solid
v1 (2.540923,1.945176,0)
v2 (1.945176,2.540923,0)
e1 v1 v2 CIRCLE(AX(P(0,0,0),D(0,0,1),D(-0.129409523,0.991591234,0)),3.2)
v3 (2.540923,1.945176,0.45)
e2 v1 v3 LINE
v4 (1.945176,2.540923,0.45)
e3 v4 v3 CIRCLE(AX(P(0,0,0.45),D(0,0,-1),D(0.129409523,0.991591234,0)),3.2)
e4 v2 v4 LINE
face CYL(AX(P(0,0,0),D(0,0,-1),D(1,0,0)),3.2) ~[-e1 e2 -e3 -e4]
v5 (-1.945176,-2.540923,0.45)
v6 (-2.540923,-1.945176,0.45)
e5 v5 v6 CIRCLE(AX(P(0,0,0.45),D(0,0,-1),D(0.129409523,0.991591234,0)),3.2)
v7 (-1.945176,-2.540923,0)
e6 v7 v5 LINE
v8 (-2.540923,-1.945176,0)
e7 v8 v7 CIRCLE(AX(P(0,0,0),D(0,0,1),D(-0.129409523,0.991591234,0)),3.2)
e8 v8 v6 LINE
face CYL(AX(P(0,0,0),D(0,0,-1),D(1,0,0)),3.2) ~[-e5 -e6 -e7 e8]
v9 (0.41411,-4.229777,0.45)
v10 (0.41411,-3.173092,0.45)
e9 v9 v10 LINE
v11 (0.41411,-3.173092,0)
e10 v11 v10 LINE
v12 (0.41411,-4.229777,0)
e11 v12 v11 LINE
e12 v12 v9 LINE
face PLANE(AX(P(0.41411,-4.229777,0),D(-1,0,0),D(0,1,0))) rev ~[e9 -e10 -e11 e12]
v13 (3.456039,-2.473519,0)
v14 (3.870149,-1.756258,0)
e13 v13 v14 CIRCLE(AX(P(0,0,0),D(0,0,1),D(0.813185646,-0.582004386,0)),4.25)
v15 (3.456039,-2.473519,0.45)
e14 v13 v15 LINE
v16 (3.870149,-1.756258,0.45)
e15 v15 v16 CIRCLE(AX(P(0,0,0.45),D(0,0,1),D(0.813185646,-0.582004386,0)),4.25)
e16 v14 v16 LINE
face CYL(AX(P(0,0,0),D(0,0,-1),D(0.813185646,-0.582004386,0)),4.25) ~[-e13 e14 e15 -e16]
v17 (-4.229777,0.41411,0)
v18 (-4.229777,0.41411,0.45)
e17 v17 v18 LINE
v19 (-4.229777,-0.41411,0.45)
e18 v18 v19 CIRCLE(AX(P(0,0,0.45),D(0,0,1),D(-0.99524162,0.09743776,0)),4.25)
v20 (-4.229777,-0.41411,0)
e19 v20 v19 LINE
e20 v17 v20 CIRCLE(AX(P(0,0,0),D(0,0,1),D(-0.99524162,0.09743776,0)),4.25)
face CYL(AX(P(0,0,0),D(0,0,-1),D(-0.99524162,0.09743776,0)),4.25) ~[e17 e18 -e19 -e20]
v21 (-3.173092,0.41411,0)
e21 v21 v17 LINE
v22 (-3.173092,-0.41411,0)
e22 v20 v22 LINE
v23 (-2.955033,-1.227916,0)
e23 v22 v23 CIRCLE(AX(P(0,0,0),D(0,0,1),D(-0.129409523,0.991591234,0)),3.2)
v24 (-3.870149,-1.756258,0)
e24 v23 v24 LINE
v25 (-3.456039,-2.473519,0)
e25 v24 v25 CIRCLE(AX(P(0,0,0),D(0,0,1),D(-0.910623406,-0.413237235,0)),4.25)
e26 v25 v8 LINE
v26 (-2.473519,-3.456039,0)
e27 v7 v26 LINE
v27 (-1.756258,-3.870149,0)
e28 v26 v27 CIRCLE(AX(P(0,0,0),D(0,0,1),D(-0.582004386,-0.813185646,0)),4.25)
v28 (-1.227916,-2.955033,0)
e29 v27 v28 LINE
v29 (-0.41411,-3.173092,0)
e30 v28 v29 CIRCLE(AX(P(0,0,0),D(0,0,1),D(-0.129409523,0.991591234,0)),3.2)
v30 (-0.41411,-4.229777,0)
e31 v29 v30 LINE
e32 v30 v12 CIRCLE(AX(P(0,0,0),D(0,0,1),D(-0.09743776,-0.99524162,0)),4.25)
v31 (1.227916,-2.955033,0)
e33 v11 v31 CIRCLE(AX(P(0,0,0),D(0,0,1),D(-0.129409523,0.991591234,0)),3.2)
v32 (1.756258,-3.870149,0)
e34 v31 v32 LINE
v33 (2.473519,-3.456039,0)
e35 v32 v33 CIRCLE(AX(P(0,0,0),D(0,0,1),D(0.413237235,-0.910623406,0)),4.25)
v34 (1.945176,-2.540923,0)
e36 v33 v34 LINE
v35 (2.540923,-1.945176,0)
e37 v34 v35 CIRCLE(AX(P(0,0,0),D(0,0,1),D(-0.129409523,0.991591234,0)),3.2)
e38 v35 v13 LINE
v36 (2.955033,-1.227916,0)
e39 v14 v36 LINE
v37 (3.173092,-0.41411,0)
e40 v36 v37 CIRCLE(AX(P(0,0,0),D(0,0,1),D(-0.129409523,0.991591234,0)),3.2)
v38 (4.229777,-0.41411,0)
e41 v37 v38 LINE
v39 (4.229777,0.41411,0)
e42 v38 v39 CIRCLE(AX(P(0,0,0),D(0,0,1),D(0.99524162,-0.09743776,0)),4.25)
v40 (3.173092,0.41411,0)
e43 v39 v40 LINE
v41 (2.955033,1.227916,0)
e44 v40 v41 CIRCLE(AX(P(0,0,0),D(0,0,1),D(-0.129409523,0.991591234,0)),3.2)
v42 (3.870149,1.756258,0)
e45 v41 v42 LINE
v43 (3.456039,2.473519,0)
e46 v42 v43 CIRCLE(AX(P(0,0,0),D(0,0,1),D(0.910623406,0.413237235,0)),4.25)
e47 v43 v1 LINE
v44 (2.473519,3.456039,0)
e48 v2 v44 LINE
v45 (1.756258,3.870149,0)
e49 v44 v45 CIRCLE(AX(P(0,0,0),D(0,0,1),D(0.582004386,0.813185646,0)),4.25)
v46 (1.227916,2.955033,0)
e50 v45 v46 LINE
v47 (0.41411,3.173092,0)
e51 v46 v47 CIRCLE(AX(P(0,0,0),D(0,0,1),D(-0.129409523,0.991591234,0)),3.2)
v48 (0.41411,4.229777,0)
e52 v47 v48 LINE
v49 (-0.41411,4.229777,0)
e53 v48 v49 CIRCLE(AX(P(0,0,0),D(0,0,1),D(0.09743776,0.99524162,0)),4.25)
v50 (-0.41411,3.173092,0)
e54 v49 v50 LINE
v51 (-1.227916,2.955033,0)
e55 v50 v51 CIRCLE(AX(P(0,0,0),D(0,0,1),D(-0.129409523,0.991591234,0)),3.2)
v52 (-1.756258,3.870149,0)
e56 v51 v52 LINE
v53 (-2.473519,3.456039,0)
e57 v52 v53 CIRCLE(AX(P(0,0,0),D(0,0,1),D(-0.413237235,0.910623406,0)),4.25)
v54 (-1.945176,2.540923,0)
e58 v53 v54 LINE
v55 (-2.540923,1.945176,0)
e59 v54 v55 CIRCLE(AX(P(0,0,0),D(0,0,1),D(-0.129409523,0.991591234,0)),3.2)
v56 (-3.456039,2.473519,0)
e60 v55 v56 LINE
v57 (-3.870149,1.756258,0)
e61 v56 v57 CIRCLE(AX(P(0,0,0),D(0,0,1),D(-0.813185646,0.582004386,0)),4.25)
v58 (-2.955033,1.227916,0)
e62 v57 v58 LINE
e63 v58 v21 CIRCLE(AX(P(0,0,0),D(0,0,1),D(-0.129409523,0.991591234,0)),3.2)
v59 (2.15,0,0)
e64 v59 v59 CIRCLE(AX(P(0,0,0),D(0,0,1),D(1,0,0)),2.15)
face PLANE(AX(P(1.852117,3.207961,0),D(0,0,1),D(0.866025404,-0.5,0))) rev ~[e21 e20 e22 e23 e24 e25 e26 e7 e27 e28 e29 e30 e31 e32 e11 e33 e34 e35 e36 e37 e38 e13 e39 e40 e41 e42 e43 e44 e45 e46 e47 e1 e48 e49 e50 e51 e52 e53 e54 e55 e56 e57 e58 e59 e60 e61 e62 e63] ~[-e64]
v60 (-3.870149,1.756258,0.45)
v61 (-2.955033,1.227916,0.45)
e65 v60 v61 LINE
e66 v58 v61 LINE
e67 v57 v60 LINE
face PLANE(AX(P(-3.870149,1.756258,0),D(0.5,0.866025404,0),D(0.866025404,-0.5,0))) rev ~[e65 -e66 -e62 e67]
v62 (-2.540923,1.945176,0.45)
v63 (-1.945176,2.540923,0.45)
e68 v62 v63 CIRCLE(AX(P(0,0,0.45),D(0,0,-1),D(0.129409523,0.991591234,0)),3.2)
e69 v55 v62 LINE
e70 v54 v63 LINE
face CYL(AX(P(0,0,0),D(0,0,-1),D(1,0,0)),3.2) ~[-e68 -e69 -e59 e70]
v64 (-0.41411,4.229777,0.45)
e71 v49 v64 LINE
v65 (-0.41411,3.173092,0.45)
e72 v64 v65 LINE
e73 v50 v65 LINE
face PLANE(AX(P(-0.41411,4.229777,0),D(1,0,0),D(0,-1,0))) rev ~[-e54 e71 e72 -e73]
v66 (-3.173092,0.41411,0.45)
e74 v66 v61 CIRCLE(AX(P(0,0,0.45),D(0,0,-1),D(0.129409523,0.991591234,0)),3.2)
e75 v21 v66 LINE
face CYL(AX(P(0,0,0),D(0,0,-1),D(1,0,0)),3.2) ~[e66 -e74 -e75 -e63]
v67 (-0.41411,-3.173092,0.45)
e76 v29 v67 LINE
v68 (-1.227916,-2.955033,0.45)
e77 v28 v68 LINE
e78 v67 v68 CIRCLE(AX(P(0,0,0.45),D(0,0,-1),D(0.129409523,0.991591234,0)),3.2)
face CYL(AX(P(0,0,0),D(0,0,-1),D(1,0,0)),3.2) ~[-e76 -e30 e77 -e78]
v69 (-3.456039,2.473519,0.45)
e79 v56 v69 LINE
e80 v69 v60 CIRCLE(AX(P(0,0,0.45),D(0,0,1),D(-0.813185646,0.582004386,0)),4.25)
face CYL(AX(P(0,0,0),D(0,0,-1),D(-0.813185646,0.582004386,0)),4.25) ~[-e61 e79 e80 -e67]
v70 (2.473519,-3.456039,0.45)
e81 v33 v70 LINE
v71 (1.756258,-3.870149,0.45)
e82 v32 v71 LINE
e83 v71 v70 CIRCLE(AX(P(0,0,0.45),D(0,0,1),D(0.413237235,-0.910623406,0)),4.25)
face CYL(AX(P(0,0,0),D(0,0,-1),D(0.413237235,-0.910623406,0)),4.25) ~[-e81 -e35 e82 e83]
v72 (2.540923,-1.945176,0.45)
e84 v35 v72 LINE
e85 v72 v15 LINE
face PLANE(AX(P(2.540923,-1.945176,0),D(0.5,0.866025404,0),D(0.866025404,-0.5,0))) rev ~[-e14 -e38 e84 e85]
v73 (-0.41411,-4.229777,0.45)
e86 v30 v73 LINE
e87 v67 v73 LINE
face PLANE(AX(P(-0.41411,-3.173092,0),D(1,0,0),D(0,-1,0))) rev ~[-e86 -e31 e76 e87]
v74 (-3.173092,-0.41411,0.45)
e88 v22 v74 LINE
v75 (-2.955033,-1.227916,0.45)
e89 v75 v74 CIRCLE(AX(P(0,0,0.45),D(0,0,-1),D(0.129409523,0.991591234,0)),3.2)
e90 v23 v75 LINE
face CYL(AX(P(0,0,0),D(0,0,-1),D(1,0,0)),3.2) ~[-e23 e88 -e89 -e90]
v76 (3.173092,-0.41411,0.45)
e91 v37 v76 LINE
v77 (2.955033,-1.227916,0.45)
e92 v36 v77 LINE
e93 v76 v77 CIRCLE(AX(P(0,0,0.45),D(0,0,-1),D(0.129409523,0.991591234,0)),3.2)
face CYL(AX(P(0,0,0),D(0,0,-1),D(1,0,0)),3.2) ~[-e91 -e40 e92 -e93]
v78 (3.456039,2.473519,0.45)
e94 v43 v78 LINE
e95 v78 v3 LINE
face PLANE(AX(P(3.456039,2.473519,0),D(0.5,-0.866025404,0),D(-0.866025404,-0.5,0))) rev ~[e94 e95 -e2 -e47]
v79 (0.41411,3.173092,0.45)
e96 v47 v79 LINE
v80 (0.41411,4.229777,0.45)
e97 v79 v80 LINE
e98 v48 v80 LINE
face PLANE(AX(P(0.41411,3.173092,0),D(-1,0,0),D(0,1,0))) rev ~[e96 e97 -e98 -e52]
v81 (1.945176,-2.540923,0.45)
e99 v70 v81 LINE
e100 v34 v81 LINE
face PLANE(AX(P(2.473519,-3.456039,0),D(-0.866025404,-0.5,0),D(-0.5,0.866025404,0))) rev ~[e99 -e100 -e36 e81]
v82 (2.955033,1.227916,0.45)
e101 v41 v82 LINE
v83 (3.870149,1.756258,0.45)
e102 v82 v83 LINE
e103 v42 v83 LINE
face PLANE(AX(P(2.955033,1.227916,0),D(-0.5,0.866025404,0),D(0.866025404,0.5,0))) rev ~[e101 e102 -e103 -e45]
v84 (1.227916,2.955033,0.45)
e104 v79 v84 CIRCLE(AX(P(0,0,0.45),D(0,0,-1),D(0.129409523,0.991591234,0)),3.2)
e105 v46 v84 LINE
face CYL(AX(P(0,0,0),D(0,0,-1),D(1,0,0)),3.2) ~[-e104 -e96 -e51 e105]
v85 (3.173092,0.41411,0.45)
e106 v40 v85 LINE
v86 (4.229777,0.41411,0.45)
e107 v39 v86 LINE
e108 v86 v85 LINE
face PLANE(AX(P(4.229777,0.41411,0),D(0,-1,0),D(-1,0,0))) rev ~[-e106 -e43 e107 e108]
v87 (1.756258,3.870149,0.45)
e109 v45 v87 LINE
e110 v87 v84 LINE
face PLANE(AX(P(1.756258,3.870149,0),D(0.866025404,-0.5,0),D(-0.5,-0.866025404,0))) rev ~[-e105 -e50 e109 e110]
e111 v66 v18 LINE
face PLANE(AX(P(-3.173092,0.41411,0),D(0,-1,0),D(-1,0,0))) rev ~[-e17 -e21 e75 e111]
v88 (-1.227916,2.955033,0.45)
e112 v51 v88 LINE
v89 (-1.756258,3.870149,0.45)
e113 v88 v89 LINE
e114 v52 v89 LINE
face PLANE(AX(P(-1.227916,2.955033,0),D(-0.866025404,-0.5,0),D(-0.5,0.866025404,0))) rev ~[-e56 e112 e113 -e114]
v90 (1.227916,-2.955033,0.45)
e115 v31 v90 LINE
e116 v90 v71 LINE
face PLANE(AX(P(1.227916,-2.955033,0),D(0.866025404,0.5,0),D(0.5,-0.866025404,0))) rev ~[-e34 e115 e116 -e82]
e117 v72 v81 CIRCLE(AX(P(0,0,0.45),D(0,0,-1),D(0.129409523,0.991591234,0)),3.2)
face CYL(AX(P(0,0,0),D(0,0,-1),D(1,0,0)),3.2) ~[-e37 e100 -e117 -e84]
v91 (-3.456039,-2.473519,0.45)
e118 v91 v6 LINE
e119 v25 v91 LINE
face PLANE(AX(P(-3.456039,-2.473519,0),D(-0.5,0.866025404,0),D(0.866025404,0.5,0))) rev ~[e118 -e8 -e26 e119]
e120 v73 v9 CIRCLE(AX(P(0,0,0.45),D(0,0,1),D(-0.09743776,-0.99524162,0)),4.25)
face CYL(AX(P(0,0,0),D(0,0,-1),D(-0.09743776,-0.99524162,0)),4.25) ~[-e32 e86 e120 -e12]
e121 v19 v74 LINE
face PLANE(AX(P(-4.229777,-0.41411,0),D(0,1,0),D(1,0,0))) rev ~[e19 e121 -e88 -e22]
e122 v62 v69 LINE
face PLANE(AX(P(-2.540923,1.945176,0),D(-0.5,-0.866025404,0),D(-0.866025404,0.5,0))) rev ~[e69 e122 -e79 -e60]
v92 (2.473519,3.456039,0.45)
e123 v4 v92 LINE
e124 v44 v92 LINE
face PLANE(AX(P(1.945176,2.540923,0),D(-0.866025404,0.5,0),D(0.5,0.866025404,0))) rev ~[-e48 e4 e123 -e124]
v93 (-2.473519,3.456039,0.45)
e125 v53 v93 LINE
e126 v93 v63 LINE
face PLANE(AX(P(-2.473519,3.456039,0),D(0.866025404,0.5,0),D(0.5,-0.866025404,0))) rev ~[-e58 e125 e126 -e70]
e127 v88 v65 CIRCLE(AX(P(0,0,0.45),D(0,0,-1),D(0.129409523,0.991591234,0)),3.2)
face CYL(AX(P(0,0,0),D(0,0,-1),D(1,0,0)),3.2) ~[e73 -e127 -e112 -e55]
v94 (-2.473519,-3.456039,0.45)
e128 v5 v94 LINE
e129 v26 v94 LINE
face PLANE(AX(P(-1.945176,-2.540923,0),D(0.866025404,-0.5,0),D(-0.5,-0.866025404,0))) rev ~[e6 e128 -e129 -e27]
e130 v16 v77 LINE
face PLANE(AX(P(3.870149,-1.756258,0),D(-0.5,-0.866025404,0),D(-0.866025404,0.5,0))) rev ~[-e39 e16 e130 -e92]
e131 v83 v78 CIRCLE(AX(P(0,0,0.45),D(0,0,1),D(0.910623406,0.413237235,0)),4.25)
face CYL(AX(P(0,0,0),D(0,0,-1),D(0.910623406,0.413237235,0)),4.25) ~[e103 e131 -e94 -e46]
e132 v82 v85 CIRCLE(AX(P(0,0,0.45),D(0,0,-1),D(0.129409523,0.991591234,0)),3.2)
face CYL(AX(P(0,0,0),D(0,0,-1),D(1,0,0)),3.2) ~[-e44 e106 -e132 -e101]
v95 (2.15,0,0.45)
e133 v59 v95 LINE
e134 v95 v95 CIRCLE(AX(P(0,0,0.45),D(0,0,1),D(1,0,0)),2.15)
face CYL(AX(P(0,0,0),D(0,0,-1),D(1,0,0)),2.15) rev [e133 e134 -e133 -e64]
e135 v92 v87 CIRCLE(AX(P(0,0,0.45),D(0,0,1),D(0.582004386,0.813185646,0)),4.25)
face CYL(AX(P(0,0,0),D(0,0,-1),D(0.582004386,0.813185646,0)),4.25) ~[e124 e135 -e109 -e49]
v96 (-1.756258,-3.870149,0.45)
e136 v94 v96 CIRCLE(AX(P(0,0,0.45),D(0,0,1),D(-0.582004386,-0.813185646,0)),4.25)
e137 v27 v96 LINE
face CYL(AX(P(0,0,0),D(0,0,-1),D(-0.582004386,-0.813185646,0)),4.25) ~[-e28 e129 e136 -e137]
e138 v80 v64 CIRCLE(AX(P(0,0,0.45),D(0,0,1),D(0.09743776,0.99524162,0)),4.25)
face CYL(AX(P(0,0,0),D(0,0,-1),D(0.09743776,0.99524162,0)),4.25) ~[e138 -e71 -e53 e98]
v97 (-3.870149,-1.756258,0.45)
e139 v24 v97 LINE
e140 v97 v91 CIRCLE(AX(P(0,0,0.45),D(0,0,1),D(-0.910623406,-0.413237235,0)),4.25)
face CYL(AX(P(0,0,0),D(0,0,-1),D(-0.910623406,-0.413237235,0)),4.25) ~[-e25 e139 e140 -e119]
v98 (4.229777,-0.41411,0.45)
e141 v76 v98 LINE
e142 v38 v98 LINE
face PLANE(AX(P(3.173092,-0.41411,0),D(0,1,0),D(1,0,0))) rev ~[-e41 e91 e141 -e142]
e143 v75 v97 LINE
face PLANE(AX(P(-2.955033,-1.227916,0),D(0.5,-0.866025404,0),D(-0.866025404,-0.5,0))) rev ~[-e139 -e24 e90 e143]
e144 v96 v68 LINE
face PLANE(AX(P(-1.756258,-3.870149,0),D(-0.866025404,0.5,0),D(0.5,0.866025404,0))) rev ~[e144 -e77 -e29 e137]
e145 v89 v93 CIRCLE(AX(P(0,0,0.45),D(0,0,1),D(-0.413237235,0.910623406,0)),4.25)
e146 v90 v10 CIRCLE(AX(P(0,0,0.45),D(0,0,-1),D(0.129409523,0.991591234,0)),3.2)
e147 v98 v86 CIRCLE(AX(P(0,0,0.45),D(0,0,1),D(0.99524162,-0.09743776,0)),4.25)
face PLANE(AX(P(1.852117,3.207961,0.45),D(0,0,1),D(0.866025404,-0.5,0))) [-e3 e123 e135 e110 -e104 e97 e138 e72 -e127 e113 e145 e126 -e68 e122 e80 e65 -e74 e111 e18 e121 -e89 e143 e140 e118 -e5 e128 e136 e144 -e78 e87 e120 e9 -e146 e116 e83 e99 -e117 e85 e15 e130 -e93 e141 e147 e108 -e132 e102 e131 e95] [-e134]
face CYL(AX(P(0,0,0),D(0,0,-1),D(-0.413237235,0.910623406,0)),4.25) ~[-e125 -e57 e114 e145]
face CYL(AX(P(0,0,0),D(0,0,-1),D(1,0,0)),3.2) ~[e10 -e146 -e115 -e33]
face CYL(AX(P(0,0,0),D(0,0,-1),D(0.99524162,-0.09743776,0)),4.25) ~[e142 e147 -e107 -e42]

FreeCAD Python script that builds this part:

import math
import FreeCAD as App
import Part
import Sketcher
from FreeCAD import Vector
Q = App.Units.Quantity

doc = App.newDocument("Part")
body = doc.addObject("PartDesign::Body", "Body")

# Sketch on XY plane
sketch1 = body.newObject("Sketcher::SketchObject", "Sketch")
sketch1.AttachmentSupport = (doc.getObject("XY_Plane"), [""])
sketch1.MapMode = "FlatFace"
sketch1.addGeometry([
    Part.Circle(Vector(0, 0, 0), Vector(0, 0, 1), 3.2),
    Part.Circle(Vector(0, 0, 0), Vector(0, 0, 1), 2.1),
], False)
sketch1.addConstraint([
    Sketcher.Constraint("Coincident", 0, 3, -1, 1),
    Sketcher.Constraint("Coincident", 1, 3, -1, 1),
    Sketcher.Constraint("Diameter", 0, Q("6.4 mm")),
    Sketcher.Constraint("Diameter", 1, Q("4.3 mm")),
])
pad1 = body.newObject("PartDesign::Pad", "Pad")
pad1.Profile = sketch1
pad1.Length = 0.45

# Sketch on XY plane
sketch2 = body.newObject("Sketcher::SketchObject", "Sketch001")
sketch2.AttachmentSupport = (doc.getObject("XY_Plane"), [""])
sketch2.MapMode = "FlatFace"
sketch2.addGeometry([
    Part.LineSegment(Vector(-0.4, 4.2, 0), Vector(-0.4, 3.2, 0)),
    Part.LineSegment(Vector(-0.4, 3.2, 0), Vector(0.4, 3.2, 0)),
    Part.LineSegment(Vector(0.4, 3.2, 0), Vector(0.4, 4.2, 0)),
    Part.ArcOfCircle(Part.Circle(Vector(0, 0, 0), Vector(0, 0, 1), 4.2), math.radians(84.41), math.radians(95.59)),
], False)
sketch2.addConstraint([
    Sketcher.Constraint("Coincident", 0, 2, 1, 1),
    Sketcher.Constraint("Coincident", 1, 2, 2, 1),
    Sketcher.Constraint("Coincident", 2, 2, 3, 1),
    Sketcher.Constraint("Coincident", 3, 2, 0, 1),
    Sketcher.Constraint("Vertical", 0),
    Sketcher.Constraint("Horizontal", 1),
    Sketcher.Constraint("Vertical", 2),
    Sketcher.Constraint("Coincident", 3, 3, -1, 1),
    Sketcher.Constraint("Horizontal", 2, 2, 3, 2),
    Sketcher.Constraint("Radius", 3, Q("4.25 mm")),
    Sketcher.Constraint("DistanceX", 1, 1, 1, 2, Q("0.828221 mm")),
    Sketcher.Constraint("DistanceY", 0, 2, 0, 1, Q("1.056685 mm")),
])
pad2 = body.newObject("PartDesign::Pad", "Pad001")
pad2.Profile = sketch2
pad2.Length = 0.45
doc.recompute()

polarpattern = body.newObject("PartDesign::PolarPattern", "PolarPattern")
polarpattern.Originals = [pad2]
polarpattern.Axis = (doc.getObject("Z_Axis"), [""])
polarpattern.Angle = 360
polarpattern.Occurrences = 12
body.Tip = polarpattern

doc.recompute()
